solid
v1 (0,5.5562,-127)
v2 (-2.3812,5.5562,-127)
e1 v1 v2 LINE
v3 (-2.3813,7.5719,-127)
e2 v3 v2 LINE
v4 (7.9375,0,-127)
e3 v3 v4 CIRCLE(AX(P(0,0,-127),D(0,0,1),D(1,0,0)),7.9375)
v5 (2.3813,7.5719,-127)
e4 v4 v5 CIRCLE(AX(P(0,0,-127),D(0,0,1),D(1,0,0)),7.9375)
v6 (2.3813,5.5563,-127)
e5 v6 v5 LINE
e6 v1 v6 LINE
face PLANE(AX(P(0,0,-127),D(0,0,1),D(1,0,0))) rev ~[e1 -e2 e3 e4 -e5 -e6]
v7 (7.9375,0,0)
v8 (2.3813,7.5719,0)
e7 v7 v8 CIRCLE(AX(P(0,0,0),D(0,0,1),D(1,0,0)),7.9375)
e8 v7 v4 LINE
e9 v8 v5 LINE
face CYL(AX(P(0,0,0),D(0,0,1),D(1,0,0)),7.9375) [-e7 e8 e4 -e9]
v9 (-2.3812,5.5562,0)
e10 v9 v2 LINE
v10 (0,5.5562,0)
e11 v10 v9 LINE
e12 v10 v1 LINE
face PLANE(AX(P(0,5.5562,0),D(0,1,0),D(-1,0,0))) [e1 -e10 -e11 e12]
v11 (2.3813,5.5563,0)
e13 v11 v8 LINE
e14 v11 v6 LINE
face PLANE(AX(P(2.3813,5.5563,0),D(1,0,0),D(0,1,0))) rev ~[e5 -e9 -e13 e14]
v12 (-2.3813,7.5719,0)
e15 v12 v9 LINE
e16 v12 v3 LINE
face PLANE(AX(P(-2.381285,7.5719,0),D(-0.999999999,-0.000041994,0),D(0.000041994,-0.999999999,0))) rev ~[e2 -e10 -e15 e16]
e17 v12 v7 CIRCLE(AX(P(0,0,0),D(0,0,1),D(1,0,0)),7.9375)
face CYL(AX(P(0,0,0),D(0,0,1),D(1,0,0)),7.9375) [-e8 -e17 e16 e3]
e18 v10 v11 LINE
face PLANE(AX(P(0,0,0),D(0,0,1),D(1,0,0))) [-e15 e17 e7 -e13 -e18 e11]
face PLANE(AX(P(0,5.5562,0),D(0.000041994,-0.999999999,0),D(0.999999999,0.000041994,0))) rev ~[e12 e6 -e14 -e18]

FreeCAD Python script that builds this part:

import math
import FreeCAD as App
import Part
import Sketcher

V = App.Vector
Q = App.Units.Quantity

doc = App.newDocument("Part")
body = doc.addObject("PartDesign::Body", "Body")

# Sketch on XY plane
sketch1 = body.newObject("Sketcher::SketchObject", "Sketch")
sketch1.AttachmentSupport = (doc.getObject("XY_Plane"), [""])
sketch1.MapMode = "FlatFace"
sketch1.addGeometry(Part.ArcOfCircle(Part.Circle(V(0, 0, 0), V(0, 0, 1), 7.9), math.radians(107), math.radians(433)), False)
sketch1.addGeometry(Part.LineSegment(V(2.4, 7.6, 0), V(2.4, 5.6, 0)), False)
sketch1.addGeometry(Part.LineSegment(V(2.4, 5.6, 0), V(0, 5.6, 0)), False)
sketch1.addGeometry(Part.LineSegment(V(0, 5.6, 0), V(-2.4, 5.6, 0)), False)
sketch1.addGeometry(Part.LineSegment(V(-2.4, 5.6, 0), V(-2.4, 7.6, 0)), False)
sketch1.addConstraint(Sketcher.Constraint("Coincident", 0, 2, 1, 1))
sketch1.addConstraint(Sketcher.Constraint("Coincident", 1, 2, 2, 1))
sketch1.addConstraint(Sketcher.Constraint("Coincident", 2, 2, 3, 1))
sketch1.addConstraint(Sketcher.Constraint("Coincident", 3, 2, 4, 1))
sketch1.addConstraint(Sketcher.Constraint("Coincident", 4, 2, 0, 1))
sketch1.addConstraint(Sketcher.Constraint("Vertical", 1))
sketch1.addConstraint(Sketcher.Constraint("Horizontal", 2))
sketch1.addConstraint(Sketcher.Constraint("Horizontal", 3))
sketch1.addConstraint(Sketcher.Constraint("Vertical", 4))
sketch1.addConstraint(Sketcher.Constraint("Coincident", 0, 3, -1, 1))
sketch1.addConstraint(Sketcher.Constraint("PointOnObject", 2, 2, -2))
sketch1.addConstraint(Sketcher.Constraint("Horizontal", 0, 2, 4, 2))
sketch1.addConstraint(Sketcher.Constraint("Radius", 0, Q("0.3125 in")))
sketch1.addConstraint(Sketcher.Constraint("DistanceX", 2, 2, 2, 1, Q("0.093752 in")))
sketch1.addConstraint(Sketcher.Constraint("DistanceY", -1, 1, 1, 2, Q("0.218752 in")))
pad1 = body.newObject("PartDesign::Pad", "Pad")
pad1.Profile = sketch1
pad1.Length = Q("5 in")
pad1.Reversed = True

doc.recompute()
